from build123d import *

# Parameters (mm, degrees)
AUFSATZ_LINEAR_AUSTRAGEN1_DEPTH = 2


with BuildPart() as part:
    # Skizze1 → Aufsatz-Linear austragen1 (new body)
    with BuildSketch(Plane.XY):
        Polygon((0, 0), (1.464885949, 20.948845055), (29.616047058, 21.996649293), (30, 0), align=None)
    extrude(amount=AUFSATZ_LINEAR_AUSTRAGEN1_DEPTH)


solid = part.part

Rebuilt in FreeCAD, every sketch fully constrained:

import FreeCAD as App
import Part
import Sketcher
from FreeCAD import Vector
Q = App.Units.Quantity


def add_polygon(sketch, points):
    """Adds a closed chain of lines whose ends are joined by coincident constraints."""
    first, n = sketch.GeometryCount, len(points)
    for a, b in zip(points, points[1:] + points[:1]):
        sketch.addGeometry(Part.LineSegment(App.Vector(*a, 0), App.Vector(*b, 0)), False)
    for i in range(n):
        sketch.addConstraint(Sketcher.Constraint("Coincident", first + i, 2, first + (i + 1) % n, 1))

doc = App.newDocument("Part")
body = doc.addObject("PartDesign::Body", "Body")

# Sketch on XY plane
sketch1 = body.newObject("Sketcher::SketchObject", "Sketch")
sketch1.AttachmentSupport = (doc.getObject("XY_Plane"), [""])
sketch1.MapMode = "FlatFace"
add_polygon(sketch1, [(1, 21), (0, 0), (30, 0), (30, 22)])  # lines 0-3
sketch1.addConstraint([
    Sketcher.Constraint("Horizontal", 1),
    Sketcher.Constraint("Coincident", 0, 2, -1, 1),
    Sketcher.Constraint("DistanceX", 1, 1, 1, 2, Q("30 mm")),
    Sketcher.Constraint("Angle", 0, Q("-94 deg")),
    Sketcher.Constraint("Angle", 2, Q("91 deg")),
    Sketcher.Constraint("Distance", 0, Q("21 mm")),
    Sketcher.Constraint("Distance", 2, Q("22 mm")),
])
pad1 = body.newObject("PartDesign::Pad", "Pad")
pad1.Profile = sketch1
pad1.Length = 2

doc.recompute()
